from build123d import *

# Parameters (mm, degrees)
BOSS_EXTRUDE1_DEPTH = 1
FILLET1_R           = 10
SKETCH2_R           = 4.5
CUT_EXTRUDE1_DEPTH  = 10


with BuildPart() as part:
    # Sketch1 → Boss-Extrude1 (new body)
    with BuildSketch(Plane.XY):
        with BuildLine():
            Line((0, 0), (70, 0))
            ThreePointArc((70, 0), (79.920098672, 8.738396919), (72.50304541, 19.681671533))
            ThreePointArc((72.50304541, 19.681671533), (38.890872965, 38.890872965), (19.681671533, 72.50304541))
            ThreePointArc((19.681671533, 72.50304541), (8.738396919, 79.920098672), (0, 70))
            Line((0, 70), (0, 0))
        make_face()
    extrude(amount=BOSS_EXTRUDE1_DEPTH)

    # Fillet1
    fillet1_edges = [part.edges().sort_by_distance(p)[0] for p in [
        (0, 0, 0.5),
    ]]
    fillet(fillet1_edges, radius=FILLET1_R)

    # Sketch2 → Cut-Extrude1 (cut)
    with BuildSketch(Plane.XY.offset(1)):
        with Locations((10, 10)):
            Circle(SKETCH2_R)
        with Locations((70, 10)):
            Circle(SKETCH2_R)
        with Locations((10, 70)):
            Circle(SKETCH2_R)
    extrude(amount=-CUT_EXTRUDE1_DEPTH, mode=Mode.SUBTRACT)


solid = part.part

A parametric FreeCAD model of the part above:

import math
import FreeCAD as App
import Part
import Sketcher

V = App.Vector
Q = App.Units.Quantity


def edges_at(feature, points):
    """Names of the edges that pass closest to the given points."""
    edges = feature.Shape.Edges
    near = lambda p: min(range(len(edges)), key=lambda i: edges[i].distToShape(Part.Vertex(*p))[0])
    return sorted({f"Edge{near(p) + 1}" for p in points})

doc = App.newDocument("Part")
body = doc.addObject("PartDesign::Body", "Body")

sketch1 = body.newObject("Sketcher::SketchObject", "Sketch")
sketch1.AttachmentSupport = (doc.getObject("XY_Plane"), [""])
sketch1.MapMode = "FlatFace"
sketch1.addGeometry([
    Part.LineSegment(V(0, 0, 0), V(70, 0, 0)),
    Part.ArcOfCircle(Part.Circle(V(70, 10, 0), V(0, 0, 1), 10), math.radians(-90), math.radians(76)),
    Part.ArcOfCircle(Part.Circle(V(91, 91, 0), V(0, 0, 1), 74), math.radians(-166), math.radians(-104)),
    Part.ArcOfCircle(Part.Circle(V(10, 70, 0), V(0, 0, 1), 10), math.radians(14), math.radians(180)),
    Part.LineSegment(V(0, 70, 0), V(0, 0, 0)),
], False)
sketch1.addConstraint([
    Sketcher.Constraint("Tangent", 0, 2, 1, 1),
    Sketcher.Constraint("Tangent", 1, 2, 2, 2),
    Sketcher.Constraint("Tangent", 2, 1, 3, 1),
    Sketcher.Constraint("Tangent", 3, 2, 4, 1),
    Sketcher.Constraint("Coincident", 4, 2, 0, 1),
    Sketcher.Constraint("Horizontal", 0),
    Sketcher.Constraint("Vertical", 4),
    Sketcher.Constraint("Coincident", 4, 2, -1, 1),
    Sketcher.Constraint("Equal", 1, 3),
    Sketcher.Constraint("Equal", 0, 4),
    Sketcher.Constraint("Radius", 1, Q("10 mm")),
    Sketcher.Constraint("DistanceX", 0, 1, 0, 2, Q("70 mm")),
    Sketcher.Constraint("Radius", 2, Q("73.581453 mm")),
])
pad1 = body.newObject("PartDesign::Pad", "Pad")
pad1.Profile = sketch1
pad1.Length = 1
doc.recompute()

fillet = body.newObject("PartDesign::Fillet", "Fillet")
fillet.Base = (pad1, edges_at(pad1, [(0, 0, 0.5)]))
fillet.Radius = 10

sketch2 = body.newObject("Sketcher::SketchObject", "Sketch001")
sketch2.AttachmentSupport = (doc.getObject("XY_Plane"), [""])
sketch2.MapMode = "FlatFace"
sketch2.AttachmentOffset = App.Placement(V(0, 0, 1), App.Rotation())
sketch2.addGeometry([
    Part.Circle(V(10, 10, 0), V(0, 0, 1), 4.5),
    Part.Circle(V(70, 10, 0), V(0, 0, 1), 4.5),
    Part.Circle(V(10, 70, 0), V(0, 0, 1), 4.5),
], False)
sketch2.addConstraint([
    Sketcher.Constraint("Equal", 0, 1),
    Sketcher.Constraint("Equal", 1, 2),
    Sketcher.Constraint("Horizontal", 0, 3, 1, 3),
    Sketcher.Constraint("Vertical", 0, 3, 2, 3),
    Sketcher.Constraint("Diameter", 0, Q("9 mm")),
    Sketcher.Constraint("DistanceX", -1, 1, 0, 3, Q("10 mm")),
    Sketcher.Constraint("DistanceY", -1, 1, 0, 3, Q("10 mm")),
    Sketcher.Constraint("DistanceX", -1, 1, 1, 3, Q("70 mm")),
    Sketcher.Constraint("DistanceY", -1, 1, 2, 3, Q("70 mm")),
])
pocket1 = body.newObject("PartDesign::Pocket", "Pocket")
pocket1.Profile = sketch2
pocket1.Length = 10

doc.recompute()
